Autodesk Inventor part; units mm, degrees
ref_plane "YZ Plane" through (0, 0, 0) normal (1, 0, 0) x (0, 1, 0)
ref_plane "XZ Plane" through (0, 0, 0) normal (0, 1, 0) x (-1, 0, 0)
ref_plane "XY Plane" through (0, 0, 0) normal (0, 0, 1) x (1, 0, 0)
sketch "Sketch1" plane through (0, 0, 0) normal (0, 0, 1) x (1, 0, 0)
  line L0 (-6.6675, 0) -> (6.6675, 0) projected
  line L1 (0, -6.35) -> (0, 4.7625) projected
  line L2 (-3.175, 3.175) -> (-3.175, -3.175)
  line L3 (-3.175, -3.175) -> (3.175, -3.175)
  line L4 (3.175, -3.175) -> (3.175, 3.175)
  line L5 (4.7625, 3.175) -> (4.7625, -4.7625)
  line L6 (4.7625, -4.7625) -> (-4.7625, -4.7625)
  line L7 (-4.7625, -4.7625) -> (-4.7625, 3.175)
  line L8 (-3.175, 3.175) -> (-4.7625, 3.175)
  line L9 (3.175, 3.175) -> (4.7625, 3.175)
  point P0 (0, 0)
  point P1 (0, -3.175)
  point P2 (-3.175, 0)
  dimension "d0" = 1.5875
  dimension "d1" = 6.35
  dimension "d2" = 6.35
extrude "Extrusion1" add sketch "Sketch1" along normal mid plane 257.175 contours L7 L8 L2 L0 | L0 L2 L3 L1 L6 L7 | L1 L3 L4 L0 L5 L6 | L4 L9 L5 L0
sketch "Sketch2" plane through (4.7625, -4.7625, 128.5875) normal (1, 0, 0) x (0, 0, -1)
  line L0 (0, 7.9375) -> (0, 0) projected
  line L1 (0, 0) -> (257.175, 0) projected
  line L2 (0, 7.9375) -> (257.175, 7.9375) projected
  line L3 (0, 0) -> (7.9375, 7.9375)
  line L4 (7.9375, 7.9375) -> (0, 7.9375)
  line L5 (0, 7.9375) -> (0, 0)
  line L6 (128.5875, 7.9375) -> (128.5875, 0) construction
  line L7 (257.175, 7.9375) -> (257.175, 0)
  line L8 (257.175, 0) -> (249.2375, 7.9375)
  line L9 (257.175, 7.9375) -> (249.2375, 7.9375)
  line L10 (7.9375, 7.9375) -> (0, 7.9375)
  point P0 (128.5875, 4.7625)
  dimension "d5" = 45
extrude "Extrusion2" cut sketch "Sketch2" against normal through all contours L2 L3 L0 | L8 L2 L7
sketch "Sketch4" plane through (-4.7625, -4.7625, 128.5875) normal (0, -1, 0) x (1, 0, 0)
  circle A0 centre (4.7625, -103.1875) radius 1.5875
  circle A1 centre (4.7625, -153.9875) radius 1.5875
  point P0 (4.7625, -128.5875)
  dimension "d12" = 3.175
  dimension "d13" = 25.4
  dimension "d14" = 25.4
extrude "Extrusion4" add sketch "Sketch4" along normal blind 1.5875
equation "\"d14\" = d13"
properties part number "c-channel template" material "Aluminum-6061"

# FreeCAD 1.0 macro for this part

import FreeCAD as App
import Part
import Sketcher

V = App.Vector
Q = App.Units.Quantity

doc = App.newDocument("Part")
body = doc.addObject("PartDesign::Body", "Body")

# Sketch on XY plane
sketch1 = doc.addObject("Sketcher::SketchObject", "Sketch")
body.addObject(sketch1)
sketch1.AttachmentSupport = (doc.XY_Plane, [""])
sketch1.MapMode = "FlatFace"
sketch1.addGeometry(Part.LineSegment(V(-4.8, 3.2, 0), V(-4.8, -4.8, 0)), False)
sketch1.addGeometry(Part.LineSegment(V(-4.8, -4.8, 0), V(4.8, -4.8, 0)), False)
sketch1.addGeometry(Part.LineSegment(V(4.8, -4.8, 0), V(4.8, 3.2, 0)), False)
sketch1.addGeometry(Part.LineSegment(V(4.8, 3.2, 0), V(3.2, 3.2, 0)), False)
sketch1.addGeometry(Part.LineSegment(V(3.2, 3.2, 0), V(3.2, -3.2, 0)), False)
sketch1.addGeometry(Part.LineSegment(V(3.2, -3.2, 0), V(-3.2, -3.2, 0)), False)
sketch1.addGeometry(Part.LineSegment(V(-3.2, -3.2, 0), V(-3.2, 3.2, 0)), False)
sketch1.addGeometry(Part.LineSegment(V(-3.2, 3.2, 0), V(-4.8, 3.2, 0)), False)
sketch1.addConstraint(Sketcher.Constraint("Coincident", 0, 2, 1, 1))
sketch1.addConstraint(Sketcher.Constraint("Coincident", 1, 2, 2, 1))
sketch1.addConstraint(Sketcher.Constraint("Coincident", 2, 2, 3, 1))
sketch1.addConstraint(Sketcher.Constraint("Coincident", 3, 2, 4, 1))
sketch1.addConstraint(Sketcher.Constraint("Coincident", 4, 2, 5, 1))
sketch1.addConstraint(Sketcher.Constraint("Coincident", 5, 2, 6, 1))
sketch1.addConstraint(Sketcher.Constraint("Coincident", 6, 2, 7, 1))
sketch1.addConstraint(Sketcher.Constraint("Coincident", 7, 2, 0, 1))
sketch1.addConstraint(Sketcher.Constraint("Vertical", 0))
sketch1.addConstraint(Sketcher.Constraint("Horizontal", 1))
sketch1.addConstraint(Sketcher.Constraint("Vertical", 2))
sketch1.addConstraint(Sketcher.Constraint("Horizontal", 3))
sketch1.addConstraint(Sketcher.Constraint("Vertical", 4))
sketch1.addConstraint(Sketcher.Constraint("Horizontal", 5))
sketch1.addConstraint(Sketcher.Constraint("Vertical", 6))
sketch1.addConstraint(Sketcher.Constraint("Horizontal", 7))
sketch1.addConstraint(Sketcher.Constraint("Symmetric", 3, 2, 5, 2, -1, 1))
sketch1.addConstraint(Sketcher.Constraint("Symmetric", 2, 2, 7, 2, -2))
sketch1.addConstraint(Sketcher.Constraint("Equal", 5, 4))
sketch1.addConstraint(Sketcher.Constraint("DistanceX", 5, 2, 5, 1, Q("0.25 in")))
sketch1.addConstraint(Sketcher.Constraint("DistanceX", 3, 2, 3, 1, Q("0.0625 in")))
sketch1.addConstraint(Sketcher.Constraint("DistanceY", 1, 2, 4, 2, Q("0.0625 in")))
pad1 = doc.addObject("PartDesign::Pad", "Pad")
body.addObject(pad1)
pad1.Profile = sketch1
pad1.Length = Q("10.125 in")
pad1.Midplane = True

# Sketch on YZ plane
sketch2 = doc.addObject("Sketcher::SketchObject", "Sketch001")
body.addObject(sketch2)
sketch2.AttachmentSupport = (doc.YZ_Plane, [""])
sketch2.MapMode = "FlatFace"
sketch2.AttachmentOffset = App.Placement(V(0, 0, 0.1875 * 25.4), App.Rotation())
sketch2.addGeometry(Part.LineSegment(V(3, 121, 0), V(3, 129, 0)), False)
sketch2.addGeometry(Part.LineSegment(V(3, 129, 0), V(-5, 129, 0)), False)
sketch2.addGeometry(Part.LineSegment(V(-5, 129, 0), V(3, 121, 0)), False)
sketch2.addGeometry(Part.LineSegment(V(3, -121, 0), V(-5, -129, 0)), False)
sketch2.addGeometry(Part.LineSegment(V(-5, -129, 0), V(3, -129, 0)), False)
sketch2.addGeometry(Part.LineSegment(V(3, -129, 0), V(3, -121, 0)), False)
sketch2.addConstraint(Sketcher.Constraint("Coincident", 0, 2, 1, 1))
sketch2.addConstraint(Sketcher.Constraint("Coincident", 1, 2, 2, 1))
sketch2.addConstraint(Sketcher.Constraint("Coincident", 2, 2, 0, 1))
sketch2.addConstraint(Sketcher.Constraint("Coincident", 3, 2, 4, 1))
sketch2.addConstraint(Sketcher.Constraint("Coincident", 4, 2, 5, 1))
sketch2.addConstraint(Sketcher.Constraint("Coincident", 5, 2, 3, 1))
sketch2.addConstraint(Sketcher.Constraint("Vertical", 0))
sketch2.addConstraint(Sketcher.Constraint("Horizontal", 1))
sketch2.addConstraint(Sketcher.Constraint("Horizontal", 4))
sketch2.addConstraint(Sketcher.Constraint("Vertical", 5))
sketch2.addConstraint(Sketcher.Constraint("Symmetric", 1, 2, 3, 2, -1))
sketch2.addConstraint(Sketcher.Constraint("Symmetric", 2, 2, 5, 2, -1))
sketch2.addConstraint(Sketcher.Constraint("Perpendicular", 2, 3))
sketch2.addConstraint(Sketcher.Constraint("DistanceY", 5, 2, 2, 2, Q("9.5 in")))
sketch2.addConstraint(Sketcher.Constraint("DistanceX", 1, 2, 1, 1, Q("0.3125 in")))
sketch2.addConstraint(Sketcher.Constraint("DistanceX", -1, 1, 0, 2, Q("0.125 in")))
pocket1 = doc.addObject("PartDesign::Pocket", "Pocket")
body.addObject(pocket1)
pocket1.Profile = sketch2
pocket1.Type = "ThroughAll"

# Sketch on XZ plane
sketch3 = doc.addObject("Sketcher::SketchObject", "Sketch002")
body.addObject(sketch3)
sketch3.AttachmentSupport = (doc.XZ_Plane, [""])
sketch3.MapMode = "FlatFace"
sketch3.AttachmentOffset = App.Placement(V(0, 0, 0.1875 * 25.4), App.Rotation())
sketch3.addGeometry(Part.Circle(V(0, 25.4, 0), V(0, 0, 1), 1.6), False)
sketch3.addGeometry(Part.Circle(V(0, -25.4, 0), V(0, 0, 1), 1.6), False)
sketch3.addConstraint(Sketcher.Constraint("Equal", 0, 1))
sketch3.addConstraint(Sketcher.Constraint("Symmetric", 0, 3, 1, 3, -1, 1))
sketch3.addConstraint(Sketcher.Constraint("PointOnObject", 0, 3, -2))
sketch3.addConstraint(Sketcher.Constraint("Diameter", 0, Q("0.125 in")))
sketch3.addConstraint(Sketcher.Constraint("DistanceY", -1, 1, 0, 3, Q("1 in")))
pad2 = doc.addObject("PartDesign::Pad", "Pad001")
body.addObject(pad2)
pad2.Profile = sketch3
pad2.Length = Q("0.0625 in")

doc.recompute()
